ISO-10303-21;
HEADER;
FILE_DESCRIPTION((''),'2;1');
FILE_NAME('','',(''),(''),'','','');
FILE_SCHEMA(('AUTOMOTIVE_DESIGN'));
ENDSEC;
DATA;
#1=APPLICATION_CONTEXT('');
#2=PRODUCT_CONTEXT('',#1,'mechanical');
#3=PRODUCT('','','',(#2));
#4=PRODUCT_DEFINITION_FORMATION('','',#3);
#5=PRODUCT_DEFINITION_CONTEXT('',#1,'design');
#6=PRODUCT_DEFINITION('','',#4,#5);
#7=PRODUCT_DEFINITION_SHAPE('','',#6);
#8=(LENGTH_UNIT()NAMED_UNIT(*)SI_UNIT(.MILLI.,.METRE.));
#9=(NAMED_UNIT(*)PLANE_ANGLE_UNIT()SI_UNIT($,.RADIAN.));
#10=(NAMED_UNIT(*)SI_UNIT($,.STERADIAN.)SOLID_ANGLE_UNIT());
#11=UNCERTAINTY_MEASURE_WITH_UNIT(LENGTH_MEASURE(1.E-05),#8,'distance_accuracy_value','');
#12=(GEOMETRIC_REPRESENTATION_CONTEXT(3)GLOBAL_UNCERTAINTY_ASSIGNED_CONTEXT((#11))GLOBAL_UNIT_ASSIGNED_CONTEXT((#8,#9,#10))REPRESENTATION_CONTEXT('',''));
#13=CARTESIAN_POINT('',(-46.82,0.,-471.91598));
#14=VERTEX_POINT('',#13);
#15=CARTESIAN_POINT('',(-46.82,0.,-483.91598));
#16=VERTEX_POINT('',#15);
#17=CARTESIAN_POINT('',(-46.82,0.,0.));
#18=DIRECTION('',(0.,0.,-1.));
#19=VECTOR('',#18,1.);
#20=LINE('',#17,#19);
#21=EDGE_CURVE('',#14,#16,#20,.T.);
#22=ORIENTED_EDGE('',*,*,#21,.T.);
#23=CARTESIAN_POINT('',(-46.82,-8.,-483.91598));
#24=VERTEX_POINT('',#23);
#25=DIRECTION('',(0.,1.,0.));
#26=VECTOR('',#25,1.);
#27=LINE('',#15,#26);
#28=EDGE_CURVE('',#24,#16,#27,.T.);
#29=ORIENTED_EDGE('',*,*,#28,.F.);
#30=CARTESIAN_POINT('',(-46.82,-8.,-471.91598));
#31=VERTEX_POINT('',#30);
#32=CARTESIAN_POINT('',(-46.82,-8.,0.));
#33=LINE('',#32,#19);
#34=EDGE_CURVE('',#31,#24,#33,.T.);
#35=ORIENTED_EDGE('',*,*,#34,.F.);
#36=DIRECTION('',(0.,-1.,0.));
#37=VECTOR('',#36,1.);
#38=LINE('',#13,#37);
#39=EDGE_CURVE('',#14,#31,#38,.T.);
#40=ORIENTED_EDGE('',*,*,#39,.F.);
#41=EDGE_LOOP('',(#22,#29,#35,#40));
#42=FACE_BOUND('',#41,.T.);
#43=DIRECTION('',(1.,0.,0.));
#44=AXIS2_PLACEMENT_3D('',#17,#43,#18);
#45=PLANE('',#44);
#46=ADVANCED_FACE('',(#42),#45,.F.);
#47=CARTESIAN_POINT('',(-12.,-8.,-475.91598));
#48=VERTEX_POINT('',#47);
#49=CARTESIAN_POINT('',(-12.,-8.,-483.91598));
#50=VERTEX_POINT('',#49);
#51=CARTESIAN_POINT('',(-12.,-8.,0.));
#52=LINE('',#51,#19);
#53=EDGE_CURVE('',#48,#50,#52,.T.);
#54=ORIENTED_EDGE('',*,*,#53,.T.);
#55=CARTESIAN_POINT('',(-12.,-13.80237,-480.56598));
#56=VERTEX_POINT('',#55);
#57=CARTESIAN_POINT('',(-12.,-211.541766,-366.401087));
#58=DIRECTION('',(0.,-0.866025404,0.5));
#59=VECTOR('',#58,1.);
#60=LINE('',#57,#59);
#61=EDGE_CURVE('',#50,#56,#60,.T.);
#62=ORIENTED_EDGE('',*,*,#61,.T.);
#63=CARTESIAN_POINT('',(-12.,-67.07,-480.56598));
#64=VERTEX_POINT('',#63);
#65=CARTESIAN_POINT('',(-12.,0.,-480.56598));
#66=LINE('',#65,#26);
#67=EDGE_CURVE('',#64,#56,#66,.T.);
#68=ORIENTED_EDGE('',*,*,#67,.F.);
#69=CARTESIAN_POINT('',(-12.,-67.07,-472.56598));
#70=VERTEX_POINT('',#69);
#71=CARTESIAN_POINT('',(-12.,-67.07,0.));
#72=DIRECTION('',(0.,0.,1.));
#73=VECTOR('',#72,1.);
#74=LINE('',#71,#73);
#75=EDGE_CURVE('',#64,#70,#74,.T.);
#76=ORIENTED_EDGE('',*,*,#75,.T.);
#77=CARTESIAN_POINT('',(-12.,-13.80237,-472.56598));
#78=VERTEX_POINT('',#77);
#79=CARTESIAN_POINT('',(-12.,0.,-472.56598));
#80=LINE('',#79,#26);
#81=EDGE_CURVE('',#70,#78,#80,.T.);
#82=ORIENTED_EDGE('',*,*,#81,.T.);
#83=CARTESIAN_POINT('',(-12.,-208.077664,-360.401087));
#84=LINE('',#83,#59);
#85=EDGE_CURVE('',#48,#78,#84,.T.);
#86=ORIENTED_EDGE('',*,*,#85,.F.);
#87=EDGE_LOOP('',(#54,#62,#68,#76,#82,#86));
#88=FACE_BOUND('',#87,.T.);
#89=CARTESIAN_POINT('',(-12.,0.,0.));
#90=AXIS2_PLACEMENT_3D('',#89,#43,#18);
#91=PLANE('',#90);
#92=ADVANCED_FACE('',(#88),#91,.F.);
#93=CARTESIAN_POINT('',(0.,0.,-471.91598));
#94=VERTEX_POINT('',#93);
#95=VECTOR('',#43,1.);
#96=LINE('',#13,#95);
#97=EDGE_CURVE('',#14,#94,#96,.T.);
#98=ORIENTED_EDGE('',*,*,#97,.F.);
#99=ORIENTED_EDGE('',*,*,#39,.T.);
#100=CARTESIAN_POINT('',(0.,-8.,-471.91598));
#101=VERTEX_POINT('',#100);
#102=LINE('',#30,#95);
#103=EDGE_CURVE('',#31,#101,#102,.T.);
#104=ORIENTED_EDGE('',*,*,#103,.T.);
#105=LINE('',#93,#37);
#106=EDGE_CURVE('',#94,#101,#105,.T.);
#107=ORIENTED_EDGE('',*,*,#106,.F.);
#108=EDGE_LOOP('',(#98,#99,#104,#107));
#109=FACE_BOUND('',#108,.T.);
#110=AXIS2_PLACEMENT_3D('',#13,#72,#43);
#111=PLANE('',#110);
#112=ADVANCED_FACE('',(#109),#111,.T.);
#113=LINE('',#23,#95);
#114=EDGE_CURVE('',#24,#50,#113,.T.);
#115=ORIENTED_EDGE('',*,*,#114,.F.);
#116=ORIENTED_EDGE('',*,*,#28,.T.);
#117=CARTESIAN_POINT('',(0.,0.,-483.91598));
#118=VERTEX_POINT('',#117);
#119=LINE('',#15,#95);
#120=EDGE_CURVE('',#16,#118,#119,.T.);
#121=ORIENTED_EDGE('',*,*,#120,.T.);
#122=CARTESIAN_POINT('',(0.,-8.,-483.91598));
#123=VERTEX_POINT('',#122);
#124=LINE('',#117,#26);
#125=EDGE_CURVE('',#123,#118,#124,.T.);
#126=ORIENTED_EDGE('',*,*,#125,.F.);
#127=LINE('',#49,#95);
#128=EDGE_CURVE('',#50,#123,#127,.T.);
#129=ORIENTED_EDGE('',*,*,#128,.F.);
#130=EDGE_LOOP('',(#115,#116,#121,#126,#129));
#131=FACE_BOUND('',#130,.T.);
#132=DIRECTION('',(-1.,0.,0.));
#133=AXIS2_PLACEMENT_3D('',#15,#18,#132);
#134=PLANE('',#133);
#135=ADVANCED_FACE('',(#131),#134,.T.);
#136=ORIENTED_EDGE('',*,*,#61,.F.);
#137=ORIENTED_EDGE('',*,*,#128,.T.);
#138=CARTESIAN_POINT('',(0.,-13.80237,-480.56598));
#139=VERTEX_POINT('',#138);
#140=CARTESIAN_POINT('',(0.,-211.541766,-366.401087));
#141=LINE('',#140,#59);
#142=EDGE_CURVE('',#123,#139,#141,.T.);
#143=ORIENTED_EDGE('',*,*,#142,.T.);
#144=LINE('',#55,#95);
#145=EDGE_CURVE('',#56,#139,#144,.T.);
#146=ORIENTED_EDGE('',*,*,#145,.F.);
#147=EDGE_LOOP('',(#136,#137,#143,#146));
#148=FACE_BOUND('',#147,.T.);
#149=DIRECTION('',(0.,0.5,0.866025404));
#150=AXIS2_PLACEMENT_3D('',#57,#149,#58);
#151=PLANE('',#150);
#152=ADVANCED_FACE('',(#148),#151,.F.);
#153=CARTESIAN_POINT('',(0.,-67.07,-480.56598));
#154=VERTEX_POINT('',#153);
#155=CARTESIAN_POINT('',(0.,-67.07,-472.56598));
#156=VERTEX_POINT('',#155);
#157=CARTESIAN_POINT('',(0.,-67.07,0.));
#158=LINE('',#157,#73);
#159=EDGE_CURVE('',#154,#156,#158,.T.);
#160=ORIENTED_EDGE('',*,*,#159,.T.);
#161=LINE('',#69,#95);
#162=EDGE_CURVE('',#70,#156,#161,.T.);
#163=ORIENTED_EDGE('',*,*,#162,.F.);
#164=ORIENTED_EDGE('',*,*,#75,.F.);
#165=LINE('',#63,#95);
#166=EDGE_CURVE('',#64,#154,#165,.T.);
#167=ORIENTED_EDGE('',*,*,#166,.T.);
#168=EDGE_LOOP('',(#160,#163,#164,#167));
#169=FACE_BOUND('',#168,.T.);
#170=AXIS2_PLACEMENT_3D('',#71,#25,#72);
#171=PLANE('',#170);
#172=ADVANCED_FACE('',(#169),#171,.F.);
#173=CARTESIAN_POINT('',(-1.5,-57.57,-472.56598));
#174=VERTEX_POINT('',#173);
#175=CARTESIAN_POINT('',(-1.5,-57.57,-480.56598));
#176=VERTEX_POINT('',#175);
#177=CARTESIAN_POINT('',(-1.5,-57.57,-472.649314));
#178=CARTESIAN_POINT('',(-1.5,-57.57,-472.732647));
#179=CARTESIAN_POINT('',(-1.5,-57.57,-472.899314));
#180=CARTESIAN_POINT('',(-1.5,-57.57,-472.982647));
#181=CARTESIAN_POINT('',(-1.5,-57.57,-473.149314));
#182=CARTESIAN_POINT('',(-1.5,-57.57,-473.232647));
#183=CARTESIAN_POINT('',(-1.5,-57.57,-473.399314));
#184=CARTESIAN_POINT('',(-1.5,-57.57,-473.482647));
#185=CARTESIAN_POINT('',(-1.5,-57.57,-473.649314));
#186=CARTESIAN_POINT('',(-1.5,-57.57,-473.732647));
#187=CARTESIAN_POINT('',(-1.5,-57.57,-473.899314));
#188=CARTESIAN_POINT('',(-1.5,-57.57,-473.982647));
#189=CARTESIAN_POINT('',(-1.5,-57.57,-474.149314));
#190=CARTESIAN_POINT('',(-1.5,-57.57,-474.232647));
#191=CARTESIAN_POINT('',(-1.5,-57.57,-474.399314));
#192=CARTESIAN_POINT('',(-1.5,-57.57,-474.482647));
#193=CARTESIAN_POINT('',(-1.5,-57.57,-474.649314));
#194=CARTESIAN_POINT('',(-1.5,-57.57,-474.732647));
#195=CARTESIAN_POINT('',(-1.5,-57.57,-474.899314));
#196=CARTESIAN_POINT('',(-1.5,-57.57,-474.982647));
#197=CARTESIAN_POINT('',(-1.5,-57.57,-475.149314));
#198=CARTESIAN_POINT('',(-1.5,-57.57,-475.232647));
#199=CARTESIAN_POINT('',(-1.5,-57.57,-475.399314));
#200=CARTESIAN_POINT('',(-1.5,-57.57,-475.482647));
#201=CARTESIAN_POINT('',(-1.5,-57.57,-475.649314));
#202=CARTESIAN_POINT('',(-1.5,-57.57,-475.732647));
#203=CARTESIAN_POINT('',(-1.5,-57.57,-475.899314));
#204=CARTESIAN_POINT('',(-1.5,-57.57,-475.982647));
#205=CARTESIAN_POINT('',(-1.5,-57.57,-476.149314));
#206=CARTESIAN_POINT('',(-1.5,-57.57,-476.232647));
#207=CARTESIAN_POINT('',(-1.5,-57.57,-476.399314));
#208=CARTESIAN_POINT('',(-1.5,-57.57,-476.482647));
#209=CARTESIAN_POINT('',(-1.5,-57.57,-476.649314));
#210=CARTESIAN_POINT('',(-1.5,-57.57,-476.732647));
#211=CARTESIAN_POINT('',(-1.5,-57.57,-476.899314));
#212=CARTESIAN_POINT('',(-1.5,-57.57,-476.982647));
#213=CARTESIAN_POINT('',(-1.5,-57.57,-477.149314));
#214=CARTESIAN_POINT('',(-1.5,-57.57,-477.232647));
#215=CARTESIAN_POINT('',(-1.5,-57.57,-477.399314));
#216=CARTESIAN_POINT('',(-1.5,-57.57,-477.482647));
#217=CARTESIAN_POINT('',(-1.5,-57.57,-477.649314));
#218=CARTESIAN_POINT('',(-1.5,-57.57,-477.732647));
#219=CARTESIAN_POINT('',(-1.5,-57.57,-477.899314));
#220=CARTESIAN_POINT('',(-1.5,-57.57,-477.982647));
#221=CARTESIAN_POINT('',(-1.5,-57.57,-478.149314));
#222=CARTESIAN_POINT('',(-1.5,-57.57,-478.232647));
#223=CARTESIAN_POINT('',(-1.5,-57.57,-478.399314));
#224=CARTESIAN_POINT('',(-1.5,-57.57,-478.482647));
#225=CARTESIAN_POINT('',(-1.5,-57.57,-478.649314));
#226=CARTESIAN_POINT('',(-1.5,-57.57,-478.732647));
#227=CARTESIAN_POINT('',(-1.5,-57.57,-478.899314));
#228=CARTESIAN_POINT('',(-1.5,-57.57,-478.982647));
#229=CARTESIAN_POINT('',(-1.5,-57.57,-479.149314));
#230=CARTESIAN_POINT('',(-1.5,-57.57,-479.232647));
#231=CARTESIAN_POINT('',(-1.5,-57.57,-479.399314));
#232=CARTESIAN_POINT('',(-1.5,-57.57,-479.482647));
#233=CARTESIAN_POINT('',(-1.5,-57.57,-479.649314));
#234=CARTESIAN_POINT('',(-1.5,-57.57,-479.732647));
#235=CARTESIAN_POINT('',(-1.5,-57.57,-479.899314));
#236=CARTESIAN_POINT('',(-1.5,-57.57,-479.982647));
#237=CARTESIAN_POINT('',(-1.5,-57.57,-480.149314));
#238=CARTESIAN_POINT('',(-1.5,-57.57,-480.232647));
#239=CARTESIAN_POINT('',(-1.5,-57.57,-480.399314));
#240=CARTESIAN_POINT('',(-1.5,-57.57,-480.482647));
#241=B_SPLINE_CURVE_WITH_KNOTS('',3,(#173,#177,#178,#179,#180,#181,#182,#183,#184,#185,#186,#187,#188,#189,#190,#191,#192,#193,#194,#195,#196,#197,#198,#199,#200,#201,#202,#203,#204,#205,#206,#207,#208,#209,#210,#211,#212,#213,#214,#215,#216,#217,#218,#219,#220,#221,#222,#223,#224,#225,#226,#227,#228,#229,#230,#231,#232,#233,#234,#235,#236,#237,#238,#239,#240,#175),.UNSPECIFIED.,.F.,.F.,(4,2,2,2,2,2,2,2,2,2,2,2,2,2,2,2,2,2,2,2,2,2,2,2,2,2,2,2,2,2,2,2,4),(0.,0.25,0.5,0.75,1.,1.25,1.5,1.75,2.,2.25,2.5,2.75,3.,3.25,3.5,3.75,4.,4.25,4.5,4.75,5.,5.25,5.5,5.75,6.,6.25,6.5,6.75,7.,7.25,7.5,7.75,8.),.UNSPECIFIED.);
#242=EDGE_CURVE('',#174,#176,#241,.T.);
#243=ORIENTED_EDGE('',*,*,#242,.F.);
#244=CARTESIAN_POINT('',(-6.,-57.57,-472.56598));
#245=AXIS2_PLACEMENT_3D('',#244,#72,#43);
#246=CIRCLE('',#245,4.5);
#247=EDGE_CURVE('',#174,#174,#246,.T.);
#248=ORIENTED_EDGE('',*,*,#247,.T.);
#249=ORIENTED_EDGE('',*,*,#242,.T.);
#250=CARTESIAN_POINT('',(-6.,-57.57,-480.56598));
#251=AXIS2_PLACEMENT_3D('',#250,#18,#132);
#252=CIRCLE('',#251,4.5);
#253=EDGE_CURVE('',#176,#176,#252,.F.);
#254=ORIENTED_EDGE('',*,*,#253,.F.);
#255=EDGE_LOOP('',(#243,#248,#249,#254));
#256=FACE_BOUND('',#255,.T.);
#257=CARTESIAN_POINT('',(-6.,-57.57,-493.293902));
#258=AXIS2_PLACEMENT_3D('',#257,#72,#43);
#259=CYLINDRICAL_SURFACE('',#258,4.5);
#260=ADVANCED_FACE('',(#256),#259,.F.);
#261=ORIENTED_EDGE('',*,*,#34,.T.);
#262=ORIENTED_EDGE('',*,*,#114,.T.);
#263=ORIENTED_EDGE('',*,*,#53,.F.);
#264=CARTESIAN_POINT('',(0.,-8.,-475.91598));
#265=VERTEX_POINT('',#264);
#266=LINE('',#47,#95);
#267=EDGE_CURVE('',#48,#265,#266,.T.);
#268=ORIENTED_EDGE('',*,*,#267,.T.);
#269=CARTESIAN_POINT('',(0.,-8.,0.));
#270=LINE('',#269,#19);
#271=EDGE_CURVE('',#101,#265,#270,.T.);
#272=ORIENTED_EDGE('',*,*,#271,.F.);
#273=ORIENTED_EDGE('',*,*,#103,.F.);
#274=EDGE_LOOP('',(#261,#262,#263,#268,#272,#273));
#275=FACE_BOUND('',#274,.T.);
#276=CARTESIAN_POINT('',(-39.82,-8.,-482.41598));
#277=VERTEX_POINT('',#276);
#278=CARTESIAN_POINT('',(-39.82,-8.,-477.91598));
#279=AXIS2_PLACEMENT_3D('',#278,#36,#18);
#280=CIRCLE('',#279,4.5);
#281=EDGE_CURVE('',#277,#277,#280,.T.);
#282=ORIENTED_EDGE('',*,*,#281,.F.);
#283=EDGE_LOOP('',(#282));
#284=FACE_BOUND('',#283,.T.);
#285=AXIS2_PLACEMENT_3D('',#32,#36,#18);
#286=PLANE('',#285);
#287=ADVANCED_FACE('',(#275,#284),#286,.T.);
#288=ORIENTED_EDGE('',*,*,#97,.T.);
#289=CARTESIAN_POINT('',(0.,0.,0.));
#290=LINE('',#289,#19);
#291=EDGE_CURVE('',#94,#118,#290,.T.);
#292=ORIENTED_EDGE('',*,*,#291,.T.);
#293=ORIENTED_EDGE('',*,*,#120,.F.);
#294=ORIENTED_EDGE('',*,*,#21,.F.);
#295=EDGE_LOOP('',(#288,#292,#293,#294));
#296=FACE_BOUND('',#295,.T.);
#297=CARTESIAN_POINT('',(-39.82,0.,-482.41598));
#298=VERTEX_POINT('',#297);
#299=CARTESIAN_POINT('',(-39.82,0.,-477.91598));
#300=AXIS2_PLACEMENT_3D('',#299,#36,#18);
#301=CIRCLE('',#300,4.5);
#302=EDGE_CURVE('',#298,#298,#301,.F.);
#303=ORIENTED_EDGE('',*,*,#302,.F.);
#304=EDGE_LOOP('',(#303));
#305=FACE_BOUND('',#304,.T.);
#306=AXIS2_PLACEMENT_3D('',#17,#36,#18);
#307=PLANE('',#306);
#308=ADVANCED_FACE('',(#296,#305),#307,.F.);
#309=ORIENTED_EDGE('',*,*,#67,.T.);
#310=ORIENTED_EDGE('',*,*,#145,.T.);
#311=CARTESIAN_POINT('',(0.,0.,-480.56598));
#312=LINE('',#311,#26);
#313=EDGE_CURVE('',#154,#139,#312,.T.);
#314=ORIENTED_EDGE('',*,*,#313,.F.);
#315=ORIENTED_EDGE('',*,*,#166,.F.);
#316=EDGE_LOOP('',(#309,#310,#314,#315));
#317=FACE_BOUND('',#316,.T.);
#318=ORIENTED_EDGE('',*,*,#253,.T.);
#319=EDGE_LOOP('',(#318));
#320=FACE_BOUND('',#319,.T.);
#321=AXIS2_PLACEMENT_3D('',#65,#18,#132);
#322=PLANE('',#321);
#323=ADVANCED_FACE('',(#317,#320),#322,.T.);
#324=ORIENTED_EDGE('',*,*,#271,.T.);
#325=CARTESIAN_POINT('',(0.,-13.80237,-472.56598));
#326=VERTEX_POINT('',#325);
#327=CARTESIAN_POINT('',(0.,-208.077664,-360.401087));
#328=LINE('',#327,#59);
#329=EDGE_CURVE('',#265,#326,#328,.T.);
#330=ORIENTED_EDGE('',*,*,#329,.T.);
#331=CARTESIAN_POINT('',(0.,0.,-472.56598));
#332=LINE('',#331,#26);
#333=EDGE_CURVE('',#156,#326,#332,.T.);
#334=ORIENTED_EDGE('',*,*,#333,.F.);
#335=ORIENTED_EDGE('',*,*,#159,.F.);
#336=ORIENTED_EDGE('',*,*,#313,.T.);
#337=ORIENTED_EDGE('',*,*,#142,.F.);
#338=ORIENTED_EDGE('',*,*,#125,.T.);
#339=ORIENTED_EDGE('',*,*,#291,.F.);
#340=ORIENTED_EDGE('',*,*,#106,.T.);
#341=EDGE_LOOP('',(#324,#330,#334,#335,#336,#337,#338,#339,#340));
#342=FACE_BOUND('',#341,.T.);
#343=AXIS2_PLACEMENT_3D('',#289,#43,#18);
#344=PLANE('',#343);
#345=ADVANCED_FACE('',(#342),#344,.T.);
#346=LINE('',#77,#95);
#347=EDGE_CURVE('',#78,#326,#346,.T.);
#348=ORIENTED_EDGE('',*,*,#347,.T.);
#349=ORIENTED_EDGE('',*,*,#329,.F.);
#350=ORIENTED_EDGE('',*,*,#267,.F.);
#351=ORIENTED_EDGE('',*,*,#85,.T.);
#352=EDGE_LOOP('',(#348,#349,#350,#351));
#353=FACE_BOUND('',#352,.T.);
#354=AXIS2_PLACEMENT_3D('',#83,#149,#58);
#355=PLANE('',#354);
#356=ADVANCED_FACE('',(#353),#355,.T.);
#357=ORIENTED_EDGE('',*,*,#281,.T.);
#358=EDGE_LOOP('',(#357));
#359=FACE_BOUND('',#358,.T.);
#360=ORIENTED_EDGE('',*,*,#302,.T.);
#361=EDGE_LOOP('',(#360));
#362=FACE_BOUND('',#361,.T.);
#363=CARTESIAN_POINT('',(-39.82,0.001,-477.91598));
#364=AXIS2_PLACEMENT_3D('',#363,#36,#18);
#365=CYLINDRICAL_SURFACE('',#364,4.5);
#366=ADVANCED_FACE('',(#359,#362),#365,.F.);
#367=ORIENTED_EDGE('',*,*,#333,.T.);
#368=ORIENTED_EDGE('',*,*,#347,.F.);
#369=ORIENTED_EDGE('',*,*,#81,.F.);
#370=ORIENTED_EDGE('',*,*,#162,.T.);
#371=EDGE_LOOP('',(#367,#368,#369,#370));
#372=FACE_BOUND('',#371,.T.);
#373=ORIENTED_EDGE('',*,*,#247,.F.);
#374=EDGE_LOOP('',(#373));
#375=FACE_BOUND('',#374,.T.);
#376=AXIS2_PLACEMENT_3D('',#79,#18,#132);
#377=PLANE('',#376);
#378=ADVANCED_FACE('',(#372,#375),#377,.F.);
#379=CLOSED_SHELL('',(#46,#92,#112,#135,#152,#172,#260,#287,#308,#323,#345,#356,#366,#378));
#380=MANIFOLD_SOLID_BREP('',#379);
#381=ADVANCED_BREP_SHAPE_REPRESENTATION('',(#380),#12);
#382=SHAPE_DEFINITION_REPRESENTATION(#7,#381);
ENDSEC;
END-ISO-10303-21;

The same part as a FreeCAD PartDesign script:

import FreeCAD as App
import Part
import Sketcher
Q = App.Units.Quantity

doc = App.newDocument("Part")
body = doc.addObject("PartDesign::Body", "Body")

sketch1 = body.newObject("Sketcher::SketchObject", "Sketch")
sketch1.AttachmentSupport = (doc.getObject("YZ_Plane"), [""])
sketch1.MapMode = "FlatFace"
sketch1.addGeometry([
    Part.LineSegment(App.Vector(-8, -483.91598, 0), App.Vector(-8, -475.91598, 0)),
    Part.LineSegment(App.Vector(-8, -475.91598, 0), App.Vector(-13.80237, -472.56598, 0)),
    Part.LineSegment(App.Vector(-13.80237, -472.56598, 0), App.Vector(-67.07, -472.56598, 0)),
    Part.LineSegment(App.Vector(-67.07, -472.56598, 0), App.Vector(-67.07, -480.56598, 0)),
    Part.LineSegment(App.Vector(-67.07, -480.56598, 0), App.Vector(-13.80237, -480.56598, 0)),
    Part.LineSegment(App.Vector(-13.80237, -480.56598, 0), App.Vector(-8, -483.91598, 0)),
], False)
sketch1.addConstraint([
    Sketcher.Constraint("Coincident", 0, 2, 1, 1),
    Sketcher.Constraint("Coincident", 1, 2, 2, 1),
    Sketcher.Constraint("Coincident", 2, 2, 3, 1),
    Sketcher.Constraint("Coincident", 3, 2, 4, 1),
    Sketcher.Constraint("Coincident", 4, 2, 5, 1),
    Sketcher.Constraint("Coincident", 5, 2, 0, 1),
    Sketcher.Constraint("Vertical", 0),
    Sketcher.Constraint("Horizontal", 2),
    Sketcher.Constraint("Vertical", 3),
    Sketcher.Constraint("Horizontal", 4),
    Sketcher.Constraint("Parallel", 1, 5),
    Sketcher.Constraint("Vertical", 1, 2, 4, 2),
    Sketcher.Constraint("DistanceY", 0, 1, 0, 2, 8.0),
    Sketcher.Constraint("Angle", 1, Q("150 deg")),
    Sketcher.Constraint("DistanceX", 0, 2, -1, 1, 8.0),
    Sketcher.Constraint("Distance", 1, 6.7),
    Sketcher.Constraint("DistanceX", 2, 2, -1, 1, 67.07),
    Sketcher.Constraint("DistanceY", 0, 2, -1, 1, 475.91598),
])
pad1 = body.newObject("PartDesign::Pad", "Pad")
pad1.Profile = sketch1
pad1.Length = 12
pad1.Reversed = True

sketch2 = body.newObject("Sketcher::SketchObject", "Sketch001")
sketch2.AttachmentSupport = (doc.getObject("YZ_Plane"), [""])
sketch2.MapMode = "FlatFace"
sketch2.addGeometry([
    Part.LineSegment(App.Vector(-8, -471.91598, 0), App.Vector(-8, -483.91598, 0)),
    Part.LineSegment(App.Vector(-8, -483.91598, 0), App.Vector(0, -483.91598, 0)),
    Part.LineSegment(App.Vector(0, -483.91598, 0), App.Vector(0, -471.91598, 0)),
    Part.LineSegment(App.Vector(0, -471.91598, 0), App.Vector(-8, -471.91598, 0)),
], False)
sketch2.addConstraint([
    Sketcher.Constraint("Coincident", 0, 2, 1, 1),
    Sketcher.Constraint("Coincident", 1, 2, 2, 1),
    Sketcher.Constraint("Coincident", 2, 2, 3, 1),
    Sketcher.Constraint("Coincident", 3, 2, 0, 1),
    Sketcher.Constraint("Vertical", 0),
    Sketcher.Constraint("Horizontal", 1),
    Sketcher.Constraint("Vertical", 2),
    Sketcher.Constraint("Horizontal", 3),
    Sketcher.Constraint("PointOnObject", 1, 2, -2),
    Sketcher.Constraint("DistanceX", 1, 1, 1, 2, 8.0),
    Sketcher.Constraint("DistanceY", 0, 2, 0, 1, 12.0),
    Sketcher.Constraint("DistanceY", 0, 2, -1, 1, 483.91598),
])
pad2 = body.newObject("PartDesign::Pad", "Pad001")
pad2.Profile = sketch2
pad2.Length = 46.82
pad2.Reversed = True

sketch3 = body.newObject("Sketcher::SketchObject", "Sketch002")
sketch3.AttachmentSupport = (doc.getObject("XZ_Plane"), [""])
sketch3.MapMode = "FlatFace"
sketch3.AttachmentOffset = App.Placement(App.Vector(0, 0, 8), App.Rotation())
sketch3.addGeometry(Part.Circle(App.Vector(-39.82, -477.91598, 0), App.Vector(0, 0, 1), 4.5), False)
sketch3.addConstraint([
    Sketcher.Constraint("Diameter", 0, 9.0),
    Sketcher.Constraint("DistanceX", 0, 3, -1, 1, 39.82),
    Sketcher.Constraint("DistanceY", 0, 3, -1, 1, 477.91598),
])
pocket1 = body.newObject("PartDesign::Pocket", "Pocket")
pocket1.Profile = sketch3
pocket1.Length = 8

sketch4 = body.newObject("Sketcher::SketchObject", "Sketch003")
sketch4.AttachmentSupport = (doc.getObject("XY_Plane"), [""])
sketch4.MapMode = "FlatFace"
sketch4.AttachmentOffset = App.Placement(App.Vector(0, 0, -472.56598), App.Rotation())
sketch4.addGeometry(Part.Circle(App.Vector(-6, -57.57, 0), App.Vector(0, 0, 1), 4.5), False)
sketch4.addConstraint([
    Sketcher.Constraint("Diameter", 0, 9.0),
    Sketcher.Constraint("DistanceX", 0, 3, -1, 1, 6.0),
    Sketcher.Constraint("DistanceY", 0, 3, -1, 1, 57.57),
])
pocket2 = body.newObject("PartDesign::Pocket", "Pocket001")
pocket2.Profile = sketch4
pocket2.Length = 8

doc.recompute()
